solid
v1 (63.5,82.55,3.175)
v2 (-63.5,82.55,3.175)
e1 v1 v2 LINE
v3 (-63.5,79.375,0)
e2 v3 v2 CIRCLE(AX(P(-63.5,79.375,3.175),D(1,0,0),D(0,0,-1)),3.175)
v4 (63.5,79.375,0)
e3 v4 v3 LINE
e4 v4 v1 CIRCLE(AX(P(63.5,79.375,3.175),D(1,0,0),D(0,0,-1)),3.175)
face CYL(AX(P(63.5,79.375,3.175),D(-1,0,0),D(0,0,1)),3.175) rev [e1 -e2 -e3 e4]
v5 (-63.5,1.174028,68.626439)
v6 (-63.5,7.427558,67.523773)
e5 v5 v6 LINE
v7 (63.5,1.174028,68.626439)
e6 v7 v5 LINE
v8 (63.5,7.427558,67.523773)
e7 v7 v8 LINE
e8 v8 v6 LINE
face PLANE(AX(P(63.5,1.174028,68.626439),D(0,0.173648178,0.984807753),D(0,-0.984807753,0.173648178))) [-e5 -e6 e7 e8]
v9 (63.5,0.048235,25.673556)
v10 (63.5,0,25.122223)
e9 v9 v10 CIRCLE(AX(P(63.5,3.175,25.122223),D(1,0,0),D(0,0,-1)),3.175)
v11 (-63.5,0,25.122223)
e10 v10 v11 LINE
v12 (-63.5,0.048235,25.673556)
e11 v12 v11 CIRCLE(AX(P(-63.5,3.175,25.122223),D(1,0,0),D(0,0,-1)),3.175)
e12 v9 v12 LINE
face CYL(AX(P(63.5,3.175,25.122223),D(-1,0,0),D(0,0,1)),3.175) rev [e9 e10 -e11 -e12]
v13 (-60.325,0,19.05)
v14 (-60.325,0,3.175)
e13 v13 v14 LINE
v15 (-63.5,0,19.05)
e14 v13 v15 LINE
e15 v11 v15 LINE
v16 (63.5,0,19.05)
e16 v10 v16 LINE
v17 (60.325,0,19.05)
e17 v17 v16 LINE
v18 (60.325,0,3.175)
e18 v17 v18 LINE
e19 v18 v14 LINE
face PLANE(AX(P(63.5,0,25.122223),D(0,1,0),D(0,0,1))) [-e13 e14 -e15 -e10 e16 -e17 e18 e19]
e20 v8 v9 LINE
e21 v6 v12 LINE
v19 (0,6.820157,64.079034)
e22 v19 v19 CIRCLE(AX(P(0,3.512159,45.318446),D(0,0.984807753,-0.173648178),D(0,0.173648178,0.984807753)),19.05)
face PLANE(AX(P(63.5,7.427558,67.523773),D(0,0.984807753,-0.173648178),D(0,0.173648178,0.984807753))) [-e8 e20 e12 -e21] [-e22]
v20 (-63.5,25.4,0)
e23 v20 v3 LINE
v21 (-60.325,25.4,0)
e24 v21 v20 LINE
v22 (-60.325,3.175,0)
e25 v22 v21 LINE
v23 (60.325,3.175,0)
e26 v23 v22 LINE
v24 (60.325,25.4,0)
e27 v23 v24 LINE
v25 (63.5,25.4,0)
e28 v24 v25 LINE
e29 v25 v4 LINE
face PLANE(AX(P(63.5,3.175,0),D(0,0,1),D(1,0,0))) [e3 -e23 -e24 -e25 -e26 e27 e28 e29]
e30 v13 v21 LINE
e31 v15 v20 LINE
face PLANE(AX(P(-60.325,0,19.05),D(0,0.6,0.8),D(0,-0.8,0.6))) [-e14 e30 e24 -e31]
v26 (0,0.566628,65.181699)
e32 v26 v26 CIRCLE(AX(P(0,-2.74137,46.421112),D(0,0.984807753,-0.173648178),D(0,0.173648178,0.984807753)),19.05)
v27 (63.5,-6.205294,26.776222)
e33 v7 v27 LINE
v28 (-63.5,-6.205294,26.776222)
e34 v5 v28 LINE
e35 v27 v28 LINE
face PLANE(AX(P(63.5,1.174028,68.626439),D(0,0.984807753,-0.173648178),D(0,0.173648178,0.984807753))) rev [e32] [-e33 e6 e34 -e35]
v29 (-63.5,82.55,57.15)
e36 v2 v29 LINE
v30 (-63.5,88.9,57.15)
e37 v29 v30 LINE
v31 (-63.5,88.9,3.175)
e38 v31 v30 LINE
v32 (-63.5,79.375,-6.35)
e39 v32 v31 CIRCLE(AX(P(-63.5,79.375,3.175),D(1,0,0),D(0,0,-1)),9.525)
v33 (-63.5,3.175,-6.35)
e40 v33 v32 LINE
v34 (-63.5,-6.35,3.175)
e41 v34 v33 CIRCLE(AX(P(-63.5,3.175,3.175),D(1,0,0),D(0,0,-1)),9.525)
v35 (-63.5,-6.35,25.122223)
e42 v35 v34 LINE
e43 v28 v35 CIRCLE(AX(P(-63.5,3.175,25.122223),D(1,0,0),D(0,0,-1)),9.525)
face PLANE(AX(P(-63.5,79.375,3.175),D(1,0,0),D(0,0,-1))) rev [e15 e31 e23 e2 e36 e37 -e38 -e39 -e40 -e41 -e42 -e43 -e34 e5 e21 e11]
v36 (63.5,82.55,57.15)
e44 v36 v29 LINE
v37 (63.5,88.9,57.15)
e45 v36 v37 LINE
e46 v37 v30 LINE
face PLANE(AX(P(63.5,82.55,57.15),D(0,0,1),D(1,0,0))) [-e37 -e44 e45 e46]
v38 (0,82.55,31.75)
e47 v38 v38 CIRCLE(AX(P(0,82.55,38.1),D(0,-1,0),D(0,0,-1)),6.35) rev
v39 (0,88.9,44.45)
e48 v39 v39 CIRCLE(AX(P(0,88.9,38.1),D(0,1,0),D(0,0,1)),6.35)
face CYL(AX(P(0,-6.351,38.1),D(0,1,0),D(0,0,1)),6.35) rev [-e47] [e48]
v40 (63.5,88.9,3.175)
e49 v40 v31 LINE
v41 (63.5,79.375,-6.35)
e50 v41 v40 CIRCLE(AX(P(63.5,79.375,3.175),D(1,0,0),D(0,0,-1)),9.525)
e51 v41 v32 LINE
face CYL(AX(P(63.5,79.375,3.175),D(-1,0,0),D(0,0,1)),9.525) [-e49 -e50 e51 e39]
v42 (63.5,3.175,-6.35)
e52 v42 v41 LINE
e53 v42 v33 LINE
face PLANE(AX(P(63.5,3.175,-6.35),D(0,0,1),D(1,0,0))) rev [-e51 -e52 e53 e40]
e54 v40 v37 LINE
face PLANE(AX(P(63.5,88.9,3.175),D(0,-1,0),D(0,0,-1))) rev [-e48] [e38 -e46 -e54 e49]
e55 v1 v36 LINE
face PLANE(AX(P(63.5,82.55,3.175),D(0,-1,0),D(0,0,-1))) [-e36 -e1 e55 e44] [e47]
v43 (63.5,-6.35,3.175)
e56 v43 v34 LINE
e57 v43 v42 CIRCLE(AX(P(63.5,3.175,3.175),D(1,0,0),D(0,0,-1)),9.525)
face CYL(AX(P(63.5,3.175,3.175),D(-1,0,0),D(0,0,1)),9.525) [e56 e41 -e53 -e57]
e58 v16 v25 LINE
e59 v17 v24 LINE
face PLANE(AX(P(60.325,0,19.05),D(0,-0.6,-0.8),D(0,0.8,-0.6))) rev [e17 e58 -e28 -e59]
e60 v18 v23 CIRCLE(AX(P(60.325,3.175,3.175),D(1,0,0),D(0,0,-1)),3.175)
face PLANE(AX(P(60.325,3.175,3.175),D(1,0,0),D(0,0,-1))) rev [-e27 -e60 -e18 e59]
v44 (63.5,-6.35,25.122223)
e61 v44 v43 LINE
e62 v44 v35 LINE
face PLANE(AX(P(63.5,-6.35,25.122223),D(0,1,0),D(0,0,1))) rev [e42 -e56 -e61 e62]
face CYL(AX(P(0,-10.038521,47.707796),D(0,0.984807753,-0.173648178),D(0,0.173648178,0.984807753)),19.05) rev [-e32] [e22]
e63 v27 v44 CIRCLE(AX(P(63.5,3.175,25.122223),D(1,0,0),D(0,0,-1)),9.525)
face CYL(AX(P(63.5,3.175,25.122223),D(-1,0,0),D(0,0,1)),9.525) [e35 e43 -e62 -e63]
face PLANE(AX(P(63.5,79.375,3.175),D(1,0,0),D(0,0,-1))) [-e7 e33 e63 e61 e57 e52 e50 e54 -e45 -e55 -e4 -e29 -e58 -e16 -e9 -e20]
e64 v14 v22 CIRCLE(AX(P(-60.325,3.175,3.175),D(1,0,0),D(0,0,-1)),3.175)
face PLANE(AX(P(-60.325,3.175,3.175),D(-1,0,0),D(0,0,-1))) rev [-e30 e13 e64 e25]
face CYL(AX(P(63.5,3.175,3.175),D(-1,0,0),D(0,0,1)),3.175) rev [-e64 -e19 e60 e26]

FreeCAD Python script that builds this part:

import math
import FreeCAD as App
import Part
import Sketcher
from FreeCAD import Vector
Q = App.Units.Quantity

doc = App.newDocument("Part")
body = doc.addObject("PartDesign::Body", "Body")

# Sketch on YZ plane
sketch1 = doc.addObject("Sketcher::SketchObject", "Sketch")
body.addObject(sketch1)
sketch1.AttachmentSupport = (doc.YZ_Plane, [""])
sketch1.MapMode = "FlatFace"
sketch1.addGeometry([
    Part.LineSegment(Vector(0, 25.7, 0), Vector(7.4, 67.5, 0)),  # 0
    Part.LineSegment(Vector(7.4, 67.5, 0), Vector(1.2, 68.6, 0)),  # 1
    Part.LineSegment(Vector(1.2, 68.6, 0), Vector(-6.2, 26.8, 0)),  # 2
    Part.ArcOfCircle(Part.Circle(Vector(3.2, 25.1, 0), Vector(0, 0, 1), 9.5), math.radians(170), math.radians(180)),  # 3
    Part.LineSegment(Vector(-6.3, 25.1, 0), Vector(-6.3, 3.2, 0)),  # 4
    Part.ArcOfCircle(Part.Circle(Vector(3.2, 3.2, 0), Vector(0, 0, 1), 9.5), math.radians(180), math.radians(270)),  # 5
    Part.LineSegment(Vector(3.2, -6.3, 0), Vector(79.4, -6.3, 0)),  # 6
    Part.ArcOfCircle(Part.Circle(Vector(79.4, 3.2, 0), Vector(0, 0, 1), 9.5), math.radians(-90), math.radians(0)),  # 7
    Part.LineSegment(Vector(88.9, 3.2, 0), Vector(88.9, 57.1, 0)),  # 8
    Part.LineSegment(Vector(88.9, 57.1, 0), Vector(82.5, 57.1, 0)),  # 9
    Part.LineSegment(Vector(82.5, 57.1, 0), Vector(82.5, 3.2, 0)),  # 10
    Part.ArcOfCircle(Part.Circle(Vector(79.4, 3.2, 0), Vector(0, 0, 1), 3.2), math.radians(-90), math.radians(0)),  # 11
    Part.LineSegment(Vector(79.4, 0, 0), Vector(3.2, 0, 0)),  # 12
    Part.ArcOfCircle(Part.Circle(Vector(3.2, 3.2, 0), Vector(0, 0, 1), 3.2), math.radians(-180), math.radians(-90)),  # 13
    Part.LineSegment(Vector(0, 3.2, 0), Vector(0, 25.1, 0)),  # 14
    Part.ArcOfCircle(Part.Circle(Vector(3.2, 25.1, 0), Vector(0, 0, 1), 3.2), math.radians(170), math.radians(180)),  # 15
], False)
sketch1.addConstraint([
    Sketcher.Constraint("Coincident", 0, 2, 1, 1),
    Sketcher.Constraint("Coincident", 1, 2, 2, 1),
    Sketcher.Constraint("Tangent", 2, 2, 3, 1),
    Sketcher.Constraint("Tangent", 3, 2, 4, 1),
    Sketcher.Constraint("Tangent", 4, 2, 5, 1),
    Sketcher.Constraint("Tangent", 5, 2, 6, 1),
    Sketcher.Constraint("Tangent", 6, 2, 7, 1),
    Sketcher.Constraint("Tangent", 7, 2, 8, 1),
    Sketcher.Constraint("Coincident", 8, 2, 9, 1),
    Sketcher.Constraint("Coincident", 9, 2, 10, 1),
    Sketcher.Constraint("Tangent", 10, 2, 11, 2),
    Sketcher.Constraint("Tangent", 11, 1, 12, 1),
    Sketcher.Constraint("Tangent", 12, 2, 13, 2),
    Sketcher.Constraint("Tangent", 13, 1, 14, 1),
    Sketcher.Constraint("Tangent", 14, 2, 15, 2),
    Sketcher.Constraint("Tangent", 15, 1, 0, 1),
    Sketcher.Constraint("Vertical", 4),
    Sketcher.Constraint("Horizontal", 6),
    Sketcher.Constraint("Vertical", 8),
    Sketcher.Constraint("Horizontal", 9),
    Sketcher.Constraint("Vertical", 10),
    Sketcher.Constraint("Horizontal", 12),
    Sketcher.Constraint("Vertical", 14),
    Sketcher.Constraint("Coincident", 11, 3, 7, 3),
    Sketcher.Constraint("Coincident", 13, 3, 5, 3),
    Sketcher.Constraint("Coincident", 15, 3, 3, 3),
    Sketcher.Constraint("Equal", 3, 5),
    Sketcher.Constraint("Equal", 5, 7),
    Sketcher.Constraint("PointOnObject", 11, 1, -1),
    Sketcher.Constraint("PointOnObject", 13, 1, -2),
    Sketcher.Constraint("Perpendicular", 0, 1),
    Sketcher.Constraint("Perpendicular", 1, 2),
    Sketcher.Constraint("DistanceX", 6, 1, 6, 2, Q("3 in")),
    Sketcher.Constraint("Angle", 0, Q("80 deg")),
    Sketcher.Constraint("Radius", 3, Q("0.375 in")),
    Sketcher.Constraint("Radius", 11, Q("0.125 in")),
    Sketcher.Constraint("DistanceY", 6, 2, 8, 2, Q("2.5 in")),
    Sketcher.Constraint("DistanceY", 4, 2, 4, 1, Q("21.947223 mm")),
    Sketcher.Constraint("DistanceX", -1, 1, 1, 2, Q("1.174028 mm")),
])
pad1 = doc.addObject("PartDesign::Pad", "Pad")
body.addObject(pad1)
pad1.Profile = sketch1
pad1.Length = Q("5 in")
pad1.Midplane = True

# Sketch on XZ plane
sketch2 = doc.addObject("Sketcher::SketchObject", "Sketch001")
body.addObject(sketch2)
sketch2.AttachmentSupport = (doc.XZ_Plane, [""])
sketch2.MapMode = "FlatFace"
sketch2.AttachmentOffset = App.Placement(Vector(0, 0, -3.5 * 25.4), App.Rotation())
sketch2.addGeometry(Part.Circle(Vector(0, 38, 0), Vector(0, 0, 1), 6), False)
sketch2.addConstraint([
    Sketcher.Constraint("PointOnObject", 0, 3, -2),
    Sketcher.Constraint("Diameter", 0, Q("0.5 in")),
    Sketcher.Constraint("DistanceY", -1, 1, 0, 3, Q("1.5 in")),
])
pocket1 = doc.addObject("PartDesign::Pocket", "Pocket")
body.addObject(pocket1)
pocket1.Profile = sketch2
pocket1.Type = "UpToFirst"
pocket1.Reversed = True

# Sketch on YZ plane
sketch3 = doc.addObject("Sketcher::SketchObject", "Sketch002")
body.addObject(sketch3)
sketch3.AttachmentSupport = (doc.YZ_Plane, [""])
sketch3.MapMode = "FlatFace"
sketch3.AttachmentOffset = App.Placement(Vector(0, 0, 2.5 * 25.4), App.Rotation())
sketch3.addGeometry([
    Part.LineSegment(Vector(0, 19.1, 0), Vector(0, 3.2, 0)),
    Part.ArcOfCircle(Part.Circle(Vector(3.2, 3.2, 0), Vector(0, 0, 1), 3.2), math.radians(-180), math.radians(-90)),
    Part.LineSegment(Vector(3.2, 0, 0), Vector(25.4, 0, 0)),
    Part.LineSegment(Vector(25.4, 0, 0), Vector(0, 19.1, 0)),
], False)
sketch3.addConstraint([
    Sketcher.Constraint("Tangent", 0, 2, 1, 1),
    Sketcher.Constraint("Tangent", 1, 2, 2, 1),
    Sketcher.Constraint("Coincident", 2, 2, 3, 1),
    Sketcher.Constraint("Coincident", 3, 2, 0, 1),
    Sketcher.Constraint("Vertical", 0),
    Sketcher.Constraint("Horizontal", 2),
    Sketcher.Constraint("PointOnObject", 0, 2, -2),
    Sketcher.Constraint("PointOnObject", 1, 2, -1),
    Sketcher.Constraint("DistanceX", -1, 1, 2, 2, Q("1 in")),
    Sketcher.Constraint("Radius", 1, Q("0.125 in")),
    Sketcher.Constraint("Distance", 3, Q("1.25 in")),
])
pad2 = doc.addObject("PartDesign::Pad", "Pad001")
body.addObject(pad2)
pad2.Profile = sketch3
pad2.Length = Q("0.125 in")
pad2.Reversed = True
doc.recompute()

mirrored = doc.addObject("PartDesign::Mirrored", "Mirrored")
body.addObject(mirrored)
mirrored.Originals = [pad2]
mirrored.MirrorPlane = (doc.YZ_Plane, [""])
body.Tip = mirrored

# Sketch on an angled plane
sketch4 = doc.addObject("Sketcher::SketchObject", "Sketch003")
body.addObject(sketch4)
sketch4.Placement = App.Placement(Vector(0, -4.343656, 0.765904), App.Rotation(Vector(-1, 0, 0), Vector(0, 0.173648178, 0.984807753), Vector(0, 0.984807753, -0.173648178), "ZXY"))
sketch4.addGeometry(Part.Circle(Vector(-4, 49, 0), Vector(0, 0, 1), 13), False)
sketch4.addConstraint([
    Sketcher.Constraint("Diameter", 0, Q("1 in")),
    Sketcher.Constraint("DistanceY", -1, 1, 0, 3, Q("49.40503 mm")),
    Sketcher.Constraint("DistanceX", 0, 3, -1, 1, Q("4.206462 mm")),
])
doc.recompute()
hole = doc.addObject("PartDesign::Hole", "Hole")
body.addObject(hole)
hole.Profile = sketch4
hole.ThreadType = "None"
hole.Diameter = Q("1 in")
hole.DepthType = "Dimension"
hole.Depth = Q("0.25 in")
hole.DrillPoint = "Angled"
hole.DrillPointAngle = 118

# Sketch on an angled plane
sketch5 = doc.addObject("Sketcher::SketchObject", "Sketch004")
body.addObject(sketch5)
sketch5.Placement = App.Placement(Vector(0, -4.343656, 0.765904), App.Rotation(Vector(1, 0, 0), Vector(0, -0.173648178, -0.984807753), Vector(0, 0.984807753, -0.173648178), "ZXY"))
sketch5.addGeometry(Part.Circle(Vector(0, -45, 0), Vector(0, 0, 1), 19), False)
sketch5.addConstraint([
    Sketcher.Constraint("PointOnObject", 0, 3, -2),
    Sketcher.Constraint("Diameter", 0, Q("1.5 in")),
    Sketcher.Constraint("DistanceY", 0, 3, -1, 1, Q("45.239837 mm")),
])
pocket2 = doc.addObject("PartDesign::Pocket", "Pocket001")
body.addObject(pocket2)
pocket2.Profile = sketch5
pocket2.Type = "ThroughAll"

doc.recompute()
